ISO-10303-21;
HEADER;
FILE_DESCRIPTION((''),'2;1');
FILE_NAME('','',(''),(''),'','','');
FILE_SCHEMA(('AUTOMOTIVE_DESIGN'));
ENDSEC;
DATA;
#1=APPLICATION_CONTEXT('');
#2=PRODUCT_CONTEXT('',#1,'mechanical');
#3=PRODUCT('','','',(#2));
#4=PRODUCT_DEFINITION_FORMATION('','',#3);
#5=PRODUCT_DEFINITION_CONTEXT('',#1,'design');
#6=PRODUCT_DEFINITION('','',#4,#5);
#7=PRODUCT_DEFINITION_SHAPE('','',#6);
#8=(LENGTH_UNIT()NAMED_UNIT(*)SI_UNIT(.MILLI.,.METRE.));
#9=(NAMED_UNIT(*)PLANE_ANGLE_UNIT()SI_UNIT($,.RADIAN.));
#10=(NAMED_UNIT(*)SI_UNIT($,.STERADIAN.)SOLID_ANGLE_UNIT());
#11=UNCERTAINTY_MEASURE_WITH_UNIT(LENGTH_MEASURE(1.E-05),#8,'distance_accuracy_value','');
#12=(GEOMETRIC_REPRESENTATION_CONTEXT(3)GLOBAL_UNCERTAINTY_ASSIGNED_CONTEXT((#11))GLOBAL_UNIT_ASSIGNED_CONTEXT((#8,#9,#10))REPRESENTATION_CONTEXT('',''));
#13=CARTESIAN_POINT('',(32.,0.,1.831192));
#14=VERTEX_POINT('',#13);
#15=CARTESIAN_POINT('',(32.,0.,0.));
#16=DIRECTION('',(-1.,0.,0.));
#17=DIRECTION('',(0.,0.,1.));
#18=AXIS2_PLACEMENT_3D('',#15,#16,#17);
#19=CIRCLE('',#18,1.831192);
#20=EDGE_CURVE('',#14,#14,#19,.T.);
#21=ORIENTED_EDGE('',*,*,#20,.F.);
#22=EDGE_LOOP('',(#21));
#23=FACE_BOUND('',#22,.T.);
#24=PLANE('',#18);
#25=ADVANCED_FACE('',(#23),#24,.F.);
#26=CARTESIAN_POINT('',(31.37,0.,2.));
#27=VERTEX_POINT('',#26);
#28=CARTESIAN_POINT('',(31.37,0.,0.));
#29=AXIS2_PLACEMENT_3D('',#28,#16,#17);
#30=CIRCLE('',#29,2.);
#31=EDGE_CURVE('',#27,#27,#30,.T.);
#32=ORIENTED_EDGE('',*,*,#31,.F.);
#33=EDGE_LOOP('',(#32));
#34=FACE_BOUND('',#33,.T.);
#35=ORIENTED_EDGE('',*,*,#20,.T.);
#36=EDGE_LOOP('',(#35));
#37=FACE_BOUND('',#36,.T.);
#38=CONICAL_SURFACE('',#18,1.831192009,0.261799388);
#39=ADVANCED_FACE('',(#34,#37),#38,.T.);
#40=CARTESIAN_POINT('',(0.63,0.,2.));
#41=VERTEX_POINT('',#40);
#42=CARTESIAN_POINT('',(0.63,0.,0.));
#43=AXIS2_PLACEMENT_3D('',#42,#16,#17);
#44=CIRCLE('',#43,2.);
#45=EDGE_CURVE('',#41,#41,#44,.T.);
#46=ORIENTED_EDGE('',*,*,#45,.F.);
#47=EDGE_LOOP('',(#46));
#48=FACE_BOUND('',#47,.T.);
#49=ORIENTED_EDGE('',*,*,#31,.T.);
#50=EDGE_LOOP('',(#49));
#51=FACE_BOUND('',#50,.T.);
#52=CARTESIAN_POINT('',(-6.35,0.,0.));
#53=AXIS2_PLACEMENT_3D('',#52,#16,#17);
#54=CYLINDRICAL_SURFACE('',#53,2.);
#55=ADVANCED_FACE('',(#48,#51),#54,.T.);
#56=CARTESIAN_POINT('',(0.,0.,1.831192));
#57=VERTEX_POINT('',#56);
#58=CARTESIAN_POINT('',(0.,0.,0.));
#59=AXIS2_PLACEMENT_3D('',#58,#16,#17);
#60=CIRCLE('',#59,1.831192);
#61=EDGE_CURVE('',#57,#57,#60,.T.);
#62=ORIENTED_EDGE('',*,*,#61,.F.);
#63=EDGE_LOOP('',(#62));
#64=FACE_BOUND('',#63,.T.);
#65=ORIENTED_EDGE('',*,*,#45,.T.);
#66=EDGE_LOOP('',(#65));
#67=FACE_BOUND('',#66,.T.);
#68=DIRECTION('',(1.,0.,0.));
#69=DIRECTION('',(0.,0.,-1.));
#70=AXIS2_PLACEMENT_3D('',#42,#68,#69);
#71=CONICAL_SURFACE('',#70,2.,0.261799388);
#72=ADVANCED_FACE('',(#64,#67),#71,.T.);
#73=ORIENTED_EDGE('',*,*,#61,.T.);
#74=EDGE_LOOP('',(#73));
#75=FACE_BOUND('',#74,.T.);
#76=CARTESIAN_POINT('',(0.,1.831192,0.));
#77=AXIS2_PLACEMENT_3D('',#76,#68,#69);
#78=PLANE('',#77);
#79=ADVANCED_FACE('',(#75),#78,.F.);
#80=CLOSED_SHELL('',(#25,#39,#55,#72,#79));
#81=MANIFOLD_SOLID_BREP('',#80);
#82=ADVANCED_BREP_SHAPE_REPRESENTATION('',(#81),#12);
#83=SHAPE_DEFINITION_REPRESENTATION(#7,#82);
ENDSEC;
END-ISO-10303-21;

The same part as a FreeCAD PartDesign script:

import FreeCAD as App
import Part
import Sketcher
from FreeCAD import Vector
Q = App.Units.Quantity

doc = App.newDocument("Part")
body = doc.addObject("PartDesign::Body", "Body")

# Sketch on XY plane
sketch1 = doc.addObject("Sketcher::SketchObject", "Sketch")
body.addObject(sketch1)
sketch1.AttachmentSupport = (doc.XY_Plane, [""])
sketch1.MapMode = "FlatFace"
sketch1.addGeometry(Part.LineSegment(Vector(0, 0, 0), Vector(32, 0, 0)), False)
sketch1.addGeometry(Part.LineSegment(Vector(32, 0, 0), Vector(32, 1.8, 0)), False)
sketch1.addGeometry(Part.LineSegment(Vector(32, 1.8, 0), Vector(31.4, 2, 0)), False)
sketch1.addGeometry(Part.LineSegment(Vector(31.4, 2, 0), Vector(0.6, 2, 0)), False)
sketch1.addGeometry(Part.LineSegment(Vector(0.6, 2, 0), Vector(0, 1.8, 0)), False)
sketch1.addGeometry(Part.LineSegment(Vector(0, 1.8, 0), Vector(0, 0, 0)), False)
sketch1.addConstraint(Sketcher.Constraint("Coincident", 0, 2, 1, 1))
sketch1.addConstraint(Sketcher.Constraint("Coincident", 1, 2, 2, 1))
sketch1.addConstraint(Sketcher.Constraint("Coincident", 2, 2, 3, 1))
sketch1.addConstraint(Sketcher.Constraint("Coincident", 3, 2, 4, 1))
sketch1.addConstraint(Sketcher.Constraint("Coincident", 4, 2, 5, 1))
sketch1.addConstraint(Sketcher.Constraint("Coincident", 5, 2, 0, 1))
sketch1.addConstraint(Sketcher.Constraint("Horizontal", 0))
sketch1.addConstraint(Sketcher.Constraint("Vertical", 1))
sketch1.addConstraint(Sketcher.Constraint("Horizontal", 3))
sketch1.addConstraint(Sketcher.Constraint("Vertical", 5))
sketch1.addConstraint(Sketcher.Constraint("Coincident", 5, 2, -1, 1))
sketch1.addConstraint(Sketcher.Constraint("Horizontal", 1, 2, 4, 2))
sketch1.addConstraint(Sketcher.Constraint("Equal", 2, 4))
sketch1.addConstraint(Sketcher.Constraint("DistanceX", 0, 1, 0, 2, 32.0))
sketch1.addConstraint(Sketcher.Constraint("Angle", 2, Q("165 deg")))
sketch1.addConstraint(Sketcher.Constraint("DistanceY", -1, 1, 2, 2, 2.0))
sketch1.addConstraint(Sketcher.Constraint("DistanceX", 3, 2, 3, 1, 30.74))
revolution = doc.addObject("PartDesign::Revolution", "Revolution")
body.addObject(revolution)
revolution.Profile = sketch1
revolution.ReferenceAxis = (sketch1, ["H_Axis"])
revolution.Angle = 360

doc.recompute()
